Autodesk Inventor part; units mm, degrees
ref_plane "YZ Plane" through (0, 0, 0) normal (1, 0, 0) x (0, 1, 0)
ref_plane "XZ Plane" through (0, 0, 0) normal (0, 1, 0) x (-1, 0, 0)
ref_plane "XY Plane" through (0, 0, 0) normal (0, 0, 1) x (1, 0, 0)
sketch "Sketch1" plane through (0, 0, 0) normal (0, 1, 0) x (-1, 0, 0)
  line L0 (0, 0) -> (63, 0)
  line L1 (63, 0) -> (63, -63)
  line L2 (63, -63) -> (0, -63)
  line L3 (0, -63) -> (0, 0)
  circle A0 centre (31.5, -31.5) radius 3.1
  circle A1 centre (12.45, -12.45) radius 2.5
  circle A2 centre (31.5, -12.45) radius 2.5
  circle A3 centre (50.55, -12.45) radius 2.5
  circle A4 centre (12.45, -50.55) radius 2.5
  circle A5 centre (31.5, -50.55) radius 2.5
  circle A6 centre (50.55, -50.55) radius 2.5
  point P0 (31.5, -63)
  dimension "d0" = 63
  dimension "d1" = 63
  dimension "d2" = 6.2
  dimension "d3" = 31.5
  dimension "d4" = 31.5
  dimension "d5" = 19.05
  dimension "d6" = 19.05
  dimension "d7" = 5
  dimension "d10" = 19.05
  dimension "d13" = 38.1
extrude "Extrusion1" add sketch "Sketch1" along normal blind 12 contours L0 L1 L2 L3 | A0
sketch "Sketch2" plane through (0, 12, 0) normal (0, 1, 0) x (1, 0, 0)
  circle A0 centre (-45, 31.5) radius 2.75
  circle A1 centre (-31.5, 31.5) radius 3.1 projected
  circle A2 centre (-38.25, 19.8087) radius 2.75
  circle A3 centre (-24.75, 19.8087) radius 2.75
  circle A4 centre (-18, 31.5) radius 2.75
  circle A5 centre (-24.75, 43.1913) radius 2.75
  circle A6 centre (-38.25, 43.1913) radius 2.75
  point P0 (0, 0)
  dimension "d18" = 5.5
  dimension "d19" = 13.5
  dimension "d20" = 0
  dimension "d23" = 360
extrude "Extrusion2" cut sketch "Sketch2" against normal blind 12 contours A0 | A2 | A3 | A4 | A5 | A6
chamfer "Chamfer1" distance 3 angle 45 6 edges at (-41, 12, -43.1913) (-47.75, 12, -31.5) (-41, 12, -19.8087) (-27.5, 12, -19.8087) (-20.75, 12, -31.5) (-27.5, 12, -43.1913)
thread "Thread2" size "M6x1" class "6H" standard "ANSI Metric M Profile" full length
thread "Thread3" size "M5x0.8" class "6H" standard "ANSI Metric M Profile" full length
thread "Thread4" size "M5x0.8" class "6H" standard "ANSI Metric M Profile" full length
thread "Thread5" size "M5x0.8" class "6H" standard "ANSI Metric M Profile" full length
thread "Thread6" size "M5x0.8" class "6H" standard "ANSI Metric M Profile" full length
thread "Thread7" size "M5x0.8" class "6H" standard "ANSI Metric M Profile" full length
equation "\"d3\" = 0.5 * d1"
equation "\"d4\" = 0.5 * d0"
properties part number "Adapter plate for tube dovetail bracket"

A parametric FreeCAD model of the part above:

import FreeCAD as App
import Part
import Sketcher
from FreeCAD import Vector


def edges_at(feature, points):
    """Names of the edges that pass closest to the given points."""
    edges = feature.Shape.Edges
    near = lambda p: min(range(len(edges)), key=lambda i: edges[i].distToShape(Part.Vertex(*p))[0])
    return sorted({f"Edge{near(p) + 1}" for p in points})


def add_polygon(sketch, points):
    """Adds a closed chain of lines whose ends are joined by coincident constraints."""
    first, n = sketch.GeometryCount, len(points)
    for a, b in zip(points, points[1:] + points[:1]):
        sketch.addGeometry(Part.LineSegment(App.Vector(*a, 0), App.Vector(*b, 0)), False)
    for i in range(n):
        sketch.addConstraint(Sketcher.Constraint("Coincident", first + i, 2, first + (i + 1) % n, 1))

doc = App.newDocument("Part")
body = doc.addObject("PartDesign::Body", "Body")

# Sketch on XZ plane
sketch1 = doc.addObject("Sketcher::SketchObject", "Sketch")
body.addObject(sketch1)
sketch1.AttachmentSupport = (doc.XZ_Plane, [""])
sketch1.MapMode = "FlatFace"
add_polygon(sketch1, [(-63, 0), (0, 0), (0, -63), (-63, -63)])  # lines 0-3
sketch1.addGeometry(Part.Circle(Vector(-12.45, -50.55, 0), Vector(0, 0, 1), 2.5), False)  # 4
sketch1.addGeometry(Part.Circle(Vector(-31.5, -50.55, 0), Vector(0, 0, 1), 2.5), False)  # 5
sketch1.addGeometry(Part.Circle(Vector(-50.55, -50.55, 0), Vector(0, 0, 1), 2.5), False)  # 6
sketch1.addGeometry(Part.Circle(Vector(-12.45, -12.45, 0), Vector(0, 0, 1), 2.5), False)  # 7
sketch1.addGeometry(Part.Circle(Vector(-31.5, -12.45, 0), Vector(0, 0, 1), 2.5), False)  # 8
sketch1.addGeometry(Part.Circle(Vector(-50.55, -12.45, 0), Vector(0, 0, 1), 2.5), False)  # 9
sketch1.addConstraint([
    Sketcher.Constraint("Horizontal", 0),
    Sketcher.Constraint("Vertical", 1),
    Sketcher.Constraint("Horizontal", 2),
    Sketcher.Constraint("Vertical", 3),
    Sketcher.Constraint("Coincident", 0, 2, -1, 1),
    Sketcher.Constraint("Equal", 4, 5),
    Sketcher.Constraint("Equal", 5, 6),
    Sketcher.Constraint("Equal", 6, 7),
    Sketcher.Constraint("Equal", 7, 8),
    Sketcher.Constraint("Equal", 8, 9),
    Sketcher.Constraint("Horizontal", 4, 3, 5, 3),
    Sketcher.Constraint("Horizontal", 5, 3, 6, 3),
    Sketcher.Constraint("Horizontal", 7, 3, 8, 3),
    Sketcher.Constraint("Horizontal", 8, 3, 9, 3),
    Sketcher.Constraint("Vertical", 4, 3, 7, 3),
    Sketcher.Constraint("Vertical", 5, 3, 8, 3),
    Sketcher.Constraint("Vertical", 6, 3, 9, 3),
    Sketcher.Constraint("Equal", 2, 1),
    Sketcher.Constraint("Diameter", 4, 5.0),
    Sketcher.Constraint("DistanceX", 0, 1, 0, 2, 63.0),
    Sketcher.Constraint("DistanceX", 5, 3, -1, 1, 31.5),
    Sketcher.Constraint("DistanceX", 6, 3, 4, 3, 38.1),
    Sketcher.Constraint("DistanceY", 4, 3, 7, 3, 38.1),
    Sketcher.Constraint("DistanceX", 5, 3, 4, 3, 19.05),
    Sketcher.Constraint("DistanceY", 4, 3, -1, 1, 50.55),
])
pad1 = doc.addObject("PartDesign::Pad", "Pad")
body.addObject(pad1)
pad1.Profile = sketch1
pad1.Length = 12
pad1.Reversed = True

# Sketch on XZ plane
sketch2 = doc.addObject("Sketcher::SketchObject", "Sketch001")
body.addObject(sketch2)
sketch2.AttachmentSupport = (doc.XZ_Plane, [""])
sketch2.MapMode = "FlatFace"
sketch2.AttachmentOffset = App.Placement(Vector(0, 0, -12), App.Rotation())
sketch2.addGeometry([
    Part.Circle(Vector(-45, -31.5, 0), Vector(0, 0, 1), 2.75),  # 0
    Part.Circle(Vector(-38.25, -19.8087, 0), Vector(0, 0, 1), 2.75),  # 1
    Part.Circle(Vector(-24.75, -19.8087, 0), Vector(0, 0, 1), 2.75),  # 2
    Part.Circle(Vector(-18, -31.5, 0), Vector(0, 0, 1), 2.75),  # 3
    Part.Circle(Vector(-24.75, -43.1913, 0), Vector(0, 0, 1), 2.75),  # 4
    Part.Circle(Vector(-38.25, -43.1913, 0), Vector(0, 0, 1), 2.75),  # 5
], False)
sketch2.addConstraint([
    Sketcher.Constraint("Equal", 0, 1),
    Sketcher.Constraint("Equal", 1, 2),
    Sketcher.Constraint("Equal", 2, 3),
    Sketcher.Constraint("Equal", 3, 4),
    Sketcher.Constraint("Equal", 4, 5),
    Sketcher.Constraint("Horizontal", 1, 3, 2, 3),
    Sketcher.Constraint("Horizontal", 0, 3, 3, 3),
    Sketcher.Constraint("Horizontal", 4, 3, 5, 3),
    Sketcher.Constraint("Vertical", 2, 3, 4, 3),
    Sketcher.Constraint("Vertical", 1, 3, 5, 3),
    Sketcher.Constraint("Diameter", 0, 5.5),
    Sketcher.Constraint("DistanceX", 1, 3, 2, 3, 13.5),
    Sketcher.Constraint("DistanceX", 0, 3, -1, 1, 45.0),
    Sketcher.Constraint("DistanceX", 3, 3, -1, 1, 18.0),
    Sketcher.Constraint("DistanceY", 0, 3, -1, 1, 31.5),
    Sketcher.Constraint("DistanceX", 1, 3, -1, 1, 38.25),
    Sketcher.Constraint("DistanceY", 1, 3, -1, 1, 19.8087),
    Sketcher.Constraint("DistanceY", 4, 3, -1, 1, 43.1913),
])
pocket1 = doc.addObject("PartDesign::Pocket", "Pocket")
body.addObject(pocket1)
pocket1.Profile = sketch2
pocket1.Length = 12
pocket1.Reversed = True
doc.recompute()

chamfer = doc.addObject("PartDesign::Chamfer", "Chamfer")
body.addObject(chamfer)
chamfer.Base = (pocket1, edges_at(pocket1, [
    (-41, 12, -43.191),
    (-47.75, 12, -31.5),
    (-41, 12, -19.809),
    (-27.5, 12, -19.809),
    (-20.75, 12, -31.5),
    (-27.5, 12, -43.191),
]))
chamfer.Size = 3

doc.recompute()
